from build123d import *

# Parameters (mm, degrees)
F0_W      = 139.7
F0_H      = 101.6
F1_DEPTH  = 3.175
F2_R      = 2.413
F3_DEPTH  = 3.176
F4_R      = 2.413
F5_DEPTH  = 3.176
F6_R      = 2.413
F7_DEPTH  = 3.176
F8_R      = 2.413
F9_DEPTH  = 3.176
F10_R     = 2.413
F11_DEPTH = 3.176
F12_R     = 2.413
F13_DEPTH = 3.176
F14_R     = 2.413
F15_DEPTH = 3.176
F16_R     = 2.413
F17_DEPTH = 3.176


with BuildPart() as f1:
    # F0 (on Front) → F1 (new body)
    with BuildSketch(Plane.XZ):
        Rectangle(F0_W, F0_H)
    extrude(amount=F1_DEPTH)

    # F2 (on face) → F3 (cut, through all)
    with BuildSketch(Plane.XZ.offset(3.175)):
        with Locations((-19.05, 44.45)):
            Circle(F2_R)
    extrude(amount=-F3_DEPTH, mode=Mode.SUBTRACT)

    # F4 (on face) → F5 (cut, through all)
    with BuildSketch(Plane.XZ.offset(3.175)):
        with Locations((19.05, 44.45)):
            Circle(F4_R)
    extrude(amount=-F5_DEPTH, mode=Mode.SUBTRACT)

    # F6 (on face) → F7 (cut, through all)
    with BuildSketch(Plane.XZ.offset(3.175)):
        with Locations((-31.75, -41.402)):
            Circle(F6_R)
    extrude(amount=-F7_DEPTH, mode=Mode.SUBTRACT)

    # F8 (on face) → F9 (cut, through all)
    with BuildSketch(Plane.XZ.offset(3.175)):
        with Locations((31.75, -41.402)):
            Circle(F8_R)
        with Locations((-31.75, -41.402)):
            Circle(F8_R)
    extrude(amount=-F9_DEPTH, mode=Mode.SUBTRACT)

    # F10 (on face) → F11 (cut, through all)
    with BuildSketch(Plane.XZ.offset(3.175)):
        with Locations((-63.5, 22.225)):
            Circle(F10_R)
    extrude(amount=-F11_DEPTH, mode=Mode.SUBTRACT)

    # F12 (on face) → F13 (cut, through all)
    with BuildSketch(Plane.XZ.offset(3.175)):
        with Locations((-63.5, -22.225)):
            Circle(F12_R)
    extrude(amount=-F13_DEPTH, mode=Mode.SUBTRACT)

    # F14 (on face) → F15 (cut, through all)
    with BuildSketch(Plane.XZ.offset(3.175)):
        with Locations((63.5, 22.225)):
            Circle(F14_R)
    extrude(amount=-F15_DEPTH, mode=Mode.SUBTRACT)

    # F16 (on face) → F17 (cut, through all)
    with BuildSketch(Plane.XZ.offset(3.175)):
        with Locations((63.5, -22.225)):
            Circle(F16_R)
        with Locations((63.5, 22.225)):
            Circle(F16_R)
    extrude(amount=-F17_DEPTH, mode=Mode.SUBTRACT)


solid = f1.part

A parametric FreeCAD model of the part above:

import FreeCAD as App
import Part
import Sketcher
from FreeCAD import Vector
Q = App.Units.Quantity

doc = App.newDocument("Part")
params = doc.addObject("Spreadsheet::Sheet", "Params")
for row, (alias, value) in enumerate([
    ("sketch1_height", "4 in"),
    ("sketch1_width", "5.5 in"),
    ("pad1_length", "0.125 in"),
    ("sketch2_diameter", "0.19 in"),
    ("sketch3_diameter", "0.19 in"),
    ("sketch4_diameter", "0.19 in"),
    ("sketch5_diameter", "0.19 in"),
    ("sketch6_diameter", "0.19 in"),
    ("sketch7_diameter", "0.19 in"),
    ("sketch8_diameter", "0.19 in"),
    ("sketch9_diameter", "0.19 in"),
], start=1):
    params.set(f"A{row}", alias)
    params.set(f"B{row}", "=" + value)
    params.setAlias(f"B{row}", alias)

body = doc.addObject("PartDesign::Body", "Body")

# Sketch on XZ plane
sketch1 = body.newObject("Sketcher::SketchObject", "Sketch")
sketch1.AttachmentSupport = (doc.getObject("XZ_Plane"), [""])
sketch1.MapMode = "FlatFace"
sketch1.addGeometry([
    Part.LineSegment(Vector(-69.85, 50.8, 0), Vector(-69.85, -50.8, 0)),
    Part.LineSegment(Vector(-69.85, -50.8, 0), Vector(69.85, -50.8, 0)),
    Part.LineSegment(Vector(69.85, -50.8, 0), Vector(69.85, 50.8, 0)),
    Part.LineSegment(Vector(69.85, 50.8, 0), Vector(-69.85, 50.8, 0)),
], False)
sketch1.addConstraint([
    Sketcher.Constraint("Coincident", 0, 2, 1, 1),
    Sketcher.Constraint("Coincident", 1, 2, 2, 1),
    Sketcher.Constraint("Coincident", 2, 2, 3, 1),
    Sketcher.Constraint("Coincident", 3, 2, 0, 1),
    Sketcher.Constraint("Vertical", 0),
    Sketcher.Constraint("Horizontal", 1),
    Sketcher.Constraint("Vertical", 2),
    Sketcher.Constraint("Horizontal", 3),
    Sketcher.Constraint("Symmetric", 0, 2, 2, 2, -1, 1),
    Sketcher.Constraint("DistanceY", 0, 2, 0, 1, Q("4 in")),
    Sketcher.Constraint("DistanceX", 1, 1, 1, 2, Q("5.5 in")),
])
sketch1.setExpression("Constraints[9]", "Params.sketch1_height")
sketch1.setExpression("Constraints[10]", "Params.sketch1_width")
pad1 = body.newObject("PartDesign::Pad", "Pad")
pad1.Profile = sketch1
pad1.setExpression("Length", "Params.pad1_length")

# Sketch on XZ plane
sketch2 = body.newObject("Sketcher::SketchObject", "Sketch001")
sketch2.AttachmentSupport = (doc.getObject("XZ_Plane"), [""])
sketch2.MapMode = "FlatFace"
sketch2.AttachmentOffset = App.Placement(Vector(0, 0, 0.125 * 25.4), App.Rotation())
sketch2.addGeometry(Part.Circle(Vector(-19.05, 44.45, 0), Vector(0, 0, 1), 2.413), False)
sketch2.addConstraint([
    Sketcher.Constraint("Diameter", 0, Q("0.19 in")),
    Sketcher.Constraint("DistanceX", 0, 3, -1, 1, Q("0.75 in")),
    Sketcher.Constraint("DistanceY", -1, 1, 0, 3, Q("1.75 in")),
])
sketch2.setExpression("Constraints[0]", "Params.sketch2_diameter")
pocket1 = body.newObject("PartDesign::Pocket", "Pocket")
pocket1.Profile = sketch2
pocket1.Type = "ThroughAll"

# Sketch on XZ plane
sketch3 = body.newObject("Sketcher::SketchObject", "Sketch002")
sketch3.AttachmentSupport = (doc.getObject("XZ_Plane"), [""])
sketch3.MapMode = "FlatFace"
sketch3.AttachmentOffset = App.Placement(Vector(0, 0, 0.125 * 25.4), App.Rotation())
sketch3.addGeometry(Part.Circle(Vector(19.05, 44.45, 0), Vector(0, 0, 1), 2.413), False)
sketch3.addConstraint([
    Sketcher.Constraint("Diameter", 0, Q("0.19 in")),
    Sketcher.Constraint("DistanceX", -1, 1, 0, 3, Q("0.75 in")),
    Sketcher.Constraint("DistanceY", -1, 1, 0, 3, Q("1.75 in")),
])
sketch3.setExpression("Constraints[0]", "Params.sketch3_diameter")
pocket2 = body.newObject("PartDesign::Pocket", "Pocket001")
pocket2.Profile = sketch3
pocket2.Type = "ThroughAll"

# Sketch on XZ plane
sketch4 = body.newObject("Sketcher::SketchObject", "Sketch003")
sketch4.AttachmentSupport = (doc.getObject("XZ_Plane"), [""])
sketch4.MapMode = "FlatFace"
sketch4.AttachmentOffset = App.Placement(Vector(0, 0, 0.125 * 25.4), App.Rotation())
sketch4.addGeometry(Part.Circle(Vector(-31.75, -41.402, 0), Vector(0, 0, 1), 2.413), False)
sketch4.addConstraint([
    Sketcher.Constraint("Diameter", 0, Q("0.19 in")),
    Sketcher.Constraint("DistanceX", 0, 3, -1, 1, Q("1.25 in")),
    Sketcher.Constraint("DistanceY", 0, 3, -1, 1, Q("1.63 in")),
])
sketch4.setExpression("Constraints[0]", "Params.sketch4_diameter")
pocket3 = body.newObject("PartDesign::Pocket", "Pocket002")
pocket3.Profile = sketch4
pocket3.Type = "ThroughAll"

# Sketch on XZ plane
sketch5 = body.newObject("Sketcher::SketchObject", "Sketch004")
sketch5.AttachmentSupport = (doc.getObject("XZ_Plane"), [""])
sketch5.MapMode = "FlatFace"
sketch5.AttachmentOffset = App.Placement(Vector(0, 0, 0.125 * 25.4), App.Rotation())
sketch5.addGeometry([
    Part.Circle(Vector(31.75, -41.402, 0), Vector(0, 0, 1), 2.413),
    Part.Circle(Vector(-31.75, -41.402, 0), Vector(0, 0, 1), 2.413),
], False)
sketch5.addConstraint([
    Sketcher.Constraint("Equal", 0, 1),
    Sketcher.Constraint("Symmetric", 0, 3, 1, 3, -2),
    Sketcher.Constraint("Diameter", 0, Q("0.19 in")),
    Sketcher.Constraint("DistanceX", 1, 3, 0, 3, Q("2.5 in")),
    Sketcher.Constraint("DistanceY", 0, 3, -1, 1, Q("1.63 in")),
])
sketch5.setExpression("Constraints[2]", "Params.sketch5_diameter")
pocket4 = body.newObject("PartDesign::Pocket", "Pocket003")
pocket4.Profile = sketch5
pocket4.Type = "ThroughAll"

# Sketch on XZ plane
sketch6 = body.newObject("Sketcher::SketchObject", "Sketch005")
sketch6.AttachmentSupport = (doc.getObject("XZ_Plane"), [""])
sketch6.MapMode = "FlatFace"
sketch6.AttachmentOffset = App.Placement(Vector(0, 0, 0.125 * 25.4), App.Rotation())
sketch6.addGeometry(Part.Circle(Vector(-63.5, 22.225, 0), Vector(0, 0, 1), 2.413), False)
sketch6.addConstraint([
    Sketcher.Constraint("Diameter", 0, Q("0.19 in")),
    Sketcher.Constraint("DistanceX", 0, 3, -1, 1, Q("2.5 in")),
    Sketcher.Constraint("DistanceY", -1, 1, 0, 3, Q("0.875 in")),
])
sketch6.setExpression("Constraints[0]", "Params.sketch6_diameter")
pocket5 = body.newObject("PartDesign::Pocket", "Pocket004")
pocket5.Profile = sketch6
pocket5.Type = "ThroughAll"

# Sketch on XZ plane
sketch7 = body.newObject("Sketcher::SketchObject", "Sketch006")
sketch7.AttachmentSupport = (doc.getObject("XZ_Plane"), [""])
sketch7.MapMode = "FlatFace"
sketch7.AttachmentOffset = App.Placement(Vector(0, 0, 0.125 * 25.4), App.Rotation())
sketch7.addGeometry(Part.Circle(Vector(-63.5, -22.225, 0), Vector(0, 0, 1), 2.413), False)
sketch7.addConstraint([
    Sketcher.Constraint("Diameter", 0, Q("0.19 in")),
    Sketcher.Constraint("DistanceX", 0, 3, -1, 1, Q("2.5 in")),
    Sketcher.Constraint("DistanceY", 0, 3, -1, 1, Q("0.875 in")),
])
sketch7.setExpression("Constraints[0]", "Params.sketch7_diameter")
pocket6 = body.newObject("PartDesign::Pocket", "Pocket005")
pocket6.Profile = sketch7
pocket6.Type = "ThroughAll"

# Sketch on XZ plane
sketch8 = body.newObject("Sketcher::SketchObject", "Sketch007")
sketch8.AttachmentSupport = (doc.getObject("XZ_Plane"), [""])
sketch8.MapMode = "FlatFace"
sketch8.AttachmentOffset = App.Placement(Vector(0, 0, 0.125 * 25.4), App.Rotation())
sketch8.addGeometry(Part.Circle(Vector(63.5, 22.225, 0), Vector(0, 0, 1), 2.413), False)
sketch8.addConstraint([
    Sketcher.Constraint("Diameter", 0, Q("0.19 in")),
    Sketcher.Constraint("DistanceX", -1, 1, 0, 3, Q("2.5 in")),
    Sketcher.Constraint("DistanceY", -1, 1, 0, 3, Q("0.875 in")),
])
sketch8.setExpression("Constraints[0]", "Params.sketch8_diameter")
pocket7 = body.newObject("PartDesign::Pocket", "Pocket006")
pocket7.Profile = sketch8
pocket7.Type = "ThroughAll"

# Sketch on XZ plane
sketch9 = body.newObject("Sketcher::SketchObject", "Sketch008")
sketch9.AttachmentSupport = (doc.getObject("XZ_Plane"), [""])
sketch9.MapMode = "FlatFace"
sketch9.AttachmentOffset = App.Placement(Vector(0, 0, 0.125 * 25.4), App.Rotation())
sketch9.addGeometry([
    Part.Circle(Vector(63.5, -22.225, 0), Vector(0, 0, 1), 2.413),
    Part.Circle(Vector(63.5, 22.225, 0), Vector(0, 0, 1), 2.413),
], False)
sketch9.addConstraint([
    Sketcher.Constraint("Equal", 0, 1),
    Sketcher.Constraint("Symmetric", 0, 3, 1, 3, -1),
    Sketcher.Constraint("Diameter", 0, Q("0.19 in")),
    Sketcher.Constraint("DistanceX", -1, 1, 0, 3, Q("2.5 in")),
    Sketcher.Constraint("DistanceY", 0, 3, 1, 3, Q("1.75 in")),
])
sketch9.setExpression("Constraints[2]", "Params.sketch9_diameter")
pocket8 = body.newObject("PartDesign::Pocket", "Pocket007")
pocket8.Profile = sketch9
pocket8.Type = "ThroughAll"

doc.recompute()
